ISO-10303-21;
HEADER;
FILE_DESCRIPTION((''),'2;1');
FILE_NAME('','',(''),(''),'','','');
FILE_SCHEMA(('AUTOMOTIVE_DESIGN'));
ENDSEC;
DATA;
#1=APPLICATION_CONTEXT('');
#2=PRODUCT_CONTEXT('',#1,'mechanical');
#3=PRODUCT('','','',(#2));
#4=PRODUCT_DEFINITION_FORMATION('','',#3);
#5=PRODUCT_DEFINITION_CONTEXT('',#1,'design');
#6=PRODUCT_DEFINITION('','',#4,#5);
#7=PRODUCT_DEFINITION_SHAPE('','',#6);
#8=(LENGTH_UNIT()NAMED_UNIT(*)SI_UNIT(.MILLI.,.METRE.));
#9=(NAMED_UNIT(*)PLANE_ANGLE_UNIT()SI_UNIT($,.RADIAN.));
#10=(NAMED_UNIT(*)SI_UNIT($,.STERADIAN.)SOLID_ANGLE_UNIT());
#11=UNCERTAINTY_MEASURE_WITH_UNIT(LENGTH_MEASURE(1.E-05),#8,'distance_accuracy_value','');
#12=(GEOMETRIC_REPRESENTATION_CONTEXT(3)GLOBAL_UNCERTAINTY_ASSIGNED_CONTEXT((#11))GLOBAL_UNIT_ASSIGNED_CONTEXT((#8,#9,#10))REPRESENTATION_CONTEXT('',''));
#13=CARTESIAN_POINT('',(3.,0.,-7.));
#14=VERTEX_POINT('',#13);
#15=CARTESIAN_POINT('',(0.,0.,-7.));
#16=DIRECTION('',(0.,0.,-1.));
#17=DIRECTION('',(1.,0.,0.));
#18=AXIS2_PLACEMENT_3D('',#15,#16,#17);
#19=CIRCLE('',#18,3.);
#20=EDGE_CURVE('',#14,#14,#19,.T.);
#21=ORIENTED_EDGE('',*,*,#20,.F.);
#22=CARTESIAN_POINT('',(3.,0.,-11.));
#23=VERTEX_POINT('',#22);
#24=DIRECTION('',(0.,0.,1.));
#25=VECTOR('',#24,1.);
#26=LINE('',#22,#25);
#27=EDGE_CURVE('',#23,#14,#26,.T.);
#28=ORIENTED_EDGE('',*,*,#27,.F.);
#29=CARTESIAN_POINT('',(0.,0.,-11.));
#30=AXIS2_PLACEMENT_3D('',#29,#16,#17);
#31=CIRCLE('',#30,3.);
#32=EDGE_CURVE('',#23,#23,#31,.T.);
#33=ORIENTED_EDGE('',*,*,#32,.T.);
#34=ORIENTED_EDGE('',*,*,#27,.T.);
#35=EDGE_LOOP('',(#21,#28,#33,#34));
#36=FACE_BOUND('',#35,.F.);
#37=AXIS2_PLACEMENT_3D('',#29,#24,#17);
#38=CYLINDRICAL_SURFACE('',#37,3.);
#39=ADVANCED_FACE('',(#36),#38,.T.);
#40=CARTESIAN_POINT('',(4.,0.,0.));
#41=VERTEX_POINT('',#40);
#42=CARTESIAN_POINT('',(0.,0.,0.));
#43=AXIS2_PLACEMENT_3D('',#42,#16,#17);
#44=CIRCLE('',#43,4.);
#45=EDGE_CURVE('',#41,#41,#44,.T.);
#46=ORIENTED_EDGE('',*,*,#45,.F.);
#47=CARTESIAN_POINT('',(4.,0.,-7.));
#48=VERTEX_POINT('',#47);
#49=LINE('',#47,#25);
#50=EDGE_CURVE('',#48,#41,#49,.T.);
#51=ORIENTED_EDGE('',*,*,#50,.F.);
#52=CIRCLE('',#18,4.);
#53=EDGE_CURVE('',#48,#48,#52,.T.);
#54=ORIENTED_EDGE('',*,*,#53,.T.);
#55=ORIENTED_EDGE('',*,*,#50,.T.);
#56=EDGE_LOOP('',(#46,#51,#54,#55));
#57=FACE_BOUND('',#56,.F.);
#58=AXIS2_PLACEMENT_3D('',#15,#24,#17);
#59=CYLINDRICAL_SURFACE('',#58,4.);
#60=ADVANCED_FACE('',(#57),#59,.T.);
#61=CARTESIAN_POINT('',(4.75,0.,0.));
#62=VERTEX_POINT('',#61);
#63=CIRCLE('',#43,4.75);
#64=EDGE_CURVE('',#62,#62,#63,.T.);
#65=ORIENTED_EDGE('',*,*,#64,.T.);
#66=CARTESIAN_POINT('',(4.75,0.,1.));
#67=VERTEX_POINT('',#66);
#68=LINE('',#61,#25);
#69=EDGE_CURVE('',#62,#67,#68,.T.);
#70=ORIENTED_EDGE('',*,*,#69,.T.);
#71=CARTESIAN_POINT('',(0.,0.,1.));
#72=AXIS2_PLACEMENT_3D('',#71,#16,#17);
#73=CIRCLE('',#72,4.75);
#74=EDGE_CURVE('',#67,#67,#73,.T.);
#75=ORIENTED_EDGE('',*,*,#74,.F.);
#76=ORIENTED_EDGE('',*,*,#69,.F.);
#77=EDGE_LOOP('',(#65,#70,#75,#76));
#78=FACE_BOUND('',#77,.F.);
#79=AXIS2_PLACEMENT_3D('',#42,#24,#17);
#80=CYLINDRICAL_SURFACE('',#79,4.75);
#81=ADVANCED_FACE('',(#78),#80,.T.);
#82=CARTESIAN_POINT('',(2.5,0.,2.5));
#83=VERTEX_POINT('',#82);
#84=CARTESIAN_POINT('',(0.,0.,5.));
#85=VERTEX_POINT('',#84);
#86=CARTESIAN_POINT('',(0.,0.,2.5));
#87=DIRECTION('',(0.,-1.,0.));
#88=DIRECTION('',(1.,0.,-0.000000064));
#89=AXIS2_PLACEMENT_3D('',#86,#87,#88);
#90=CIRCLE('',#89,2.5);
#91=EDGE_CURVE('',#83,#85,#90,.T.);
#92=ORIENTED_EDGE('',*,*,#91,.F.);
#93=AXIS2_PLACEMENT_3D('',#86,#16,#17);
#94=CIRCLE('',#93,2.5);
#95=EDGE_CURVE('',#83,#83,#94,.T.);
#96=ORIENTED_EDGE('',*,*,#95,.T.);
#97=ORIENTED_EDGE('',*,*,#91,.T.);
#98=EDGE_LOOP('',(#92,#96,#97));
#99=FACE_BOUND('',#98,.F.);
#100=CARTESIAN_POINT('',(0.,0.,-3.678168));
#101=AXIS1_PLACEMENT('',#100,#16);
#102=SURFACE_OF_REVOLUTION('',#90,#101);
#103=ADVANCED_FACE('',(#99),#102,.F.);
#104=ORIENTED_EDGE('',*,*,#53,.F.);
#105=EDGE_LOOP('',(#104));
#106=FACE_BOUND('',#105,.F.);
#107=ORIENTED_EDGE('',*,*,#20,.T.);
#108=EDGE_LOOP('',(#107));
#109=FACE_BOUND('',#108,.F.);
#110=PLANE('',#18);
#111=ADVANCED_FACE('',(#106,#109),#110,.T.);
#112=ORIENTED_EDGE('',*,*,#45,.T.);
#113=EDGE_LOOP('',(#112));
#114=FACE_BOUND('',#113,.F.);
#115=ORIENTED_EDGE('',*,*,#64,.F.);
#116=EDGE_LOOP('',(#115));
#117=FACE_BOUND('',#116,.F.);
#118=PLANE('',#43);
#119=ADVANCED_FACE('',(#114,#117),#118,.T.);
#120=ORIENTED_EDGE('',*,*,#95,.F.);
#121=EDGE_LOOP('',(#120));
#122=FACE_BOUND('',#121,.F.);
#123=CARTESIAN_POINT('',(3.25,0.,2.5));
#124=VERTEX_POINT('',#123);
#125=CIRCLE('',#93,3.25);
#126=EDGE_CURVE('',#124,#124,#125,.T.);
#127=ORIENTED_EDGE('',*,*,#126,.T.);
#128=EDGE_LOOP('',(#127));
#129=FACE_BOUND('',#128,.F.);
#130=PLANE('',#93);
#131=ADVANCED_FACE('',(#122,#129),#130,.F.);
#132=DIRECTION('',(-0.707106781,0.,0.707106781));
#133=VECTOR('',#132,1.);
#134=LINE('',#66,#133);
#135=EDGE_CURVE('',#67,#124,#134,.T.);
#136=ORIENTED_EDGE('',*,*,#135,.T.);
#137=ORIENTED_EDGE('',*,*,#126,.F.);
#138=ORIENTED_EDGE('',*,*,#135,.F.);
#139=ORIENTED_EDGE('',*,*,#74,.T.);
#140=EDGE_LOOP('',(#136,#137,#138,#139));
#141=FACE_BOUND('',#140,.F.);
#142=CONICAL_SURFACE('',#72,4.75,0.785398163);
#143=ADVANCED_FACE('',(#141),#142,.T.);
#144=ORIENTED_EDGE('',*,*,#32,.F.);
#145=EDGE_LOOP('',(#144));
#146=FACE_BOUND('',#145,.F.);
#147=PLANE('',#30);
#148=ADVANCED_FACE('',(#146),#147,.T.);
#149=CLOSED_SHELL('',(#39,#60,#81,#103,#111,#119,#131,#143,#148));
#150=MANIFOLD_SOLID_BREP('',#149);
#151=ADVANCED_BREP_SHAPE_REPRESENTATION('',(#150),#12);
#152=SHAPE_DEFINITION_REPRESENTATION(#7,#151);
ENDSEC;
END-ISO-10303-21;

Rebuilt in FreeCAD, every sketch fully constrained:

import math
import FreeCAD as App
import Part
import Sketcher

V = App.Vector

doc = App.newDocument("Part")
body = doc.addObject("PartDesign::Body", "Body")

# Sketch on XZ plane
sketch1 = doc.addObject("Sketcher::SketchObject", "Sketch")
body.addObject(sketch1)
sketch1.AttachmentSupport = (doc.XZ_Plane, [""])
sketch1.MapMode = "FlatFace"
sketch1.addGeometry(Part.LineSegment(V(3.2, 2.5, 0), V(2.5, 2.5, 0)), False)
sketch1.addGeometry(Part.ArcOfCircle(Part.Circle(V(0, 2.5, 0), V(0, 0, 1), 2.5), math.radians(0), math.radians(90)), False)
sketch1.addGeometry(Part.LineSegment(V(0, 5, 0), V(0, -11, 0)), False)
sketch1.addGeometry(Part.LineSegment(V(0, -11, 0), V(3, -11, 0)), False)
sketch1.addGeometry(Part.LineSegment(V(3, -11, 0), V(3, -7, 0)), False)
sketch1.addGeometry(Part.LineSegment(V(3, -7, 0), V(4, -7, 0)), False)
sketch1.addGeometry(Part.LineSegment(V(4, -7, 0), V(4, 0, 0)), False)
sketch1.addGeometry(Part.LineSegment(V(4, 0, 0), V(4.8, 0, 0)), False)
sketch1.addGeometry(Part.LineSegment(V(4.8, 0, 0), V(4.8, 1, 0)), False)
sketch1.addGeometry(Part.LineSegment(V(4.8, 1, 0), V(3.2, 2.5, 0)), False)
sketch1.addConstraint(Sketcher.Constraint("Coincident", 0, 2, 1, 1))
sketch1.addConstraint(Sketcher.Constraint("Coincident", 1, 2, 2, 1))
sketch1.addConstraint(Sketcher.Constraint("Coincident", 2, 2, 3, 1))
sketch1.addConstraint(Sketcher.Constraint("Coincident", 3, 2, 4, 1))
sketch1.addConstraint(Sketcher.Constraint("Coincident", 4, 2, 5, 1))
sketch1.addConstraint(Sketcher.Constraint("Coincident", 5, 2, 6, 1))
sketch1.addConstraint(Sketcher.Constraint("Coincident", 6, 2, 7, 1))
sketch1.addConstraint(Sketcher.Constraint("Coincident", 7, 2, 8, 1))
sketch1.addConstraint(Sketcher.Constraint("Coincident", 8, 2, 9, 1))
sketch1.addConstraint(Sketcher.Constraint("Coincident", 9, 2, 0, 1))
sketch1.addConstraint(Sketcher.Constraint("Horizontal", 0))
sketch1.addConstraint(Sketcher.Constraint("Vertical", 2))
sketch1.addConstraint(Sketcher.Constraint("Horizontal", 3))
sketch1.addConstraint(Sketcher.Constraint("Vertical", 4))
sketch1.addConstraint(Sketcher.Constraint("Horizontal", 5))
sketch1.addConstraint(Sketcher.Constraint("Vertical", 6))
sketch1.addConstraint(Sketcher.Constraint("Horizontal", 7))
sketch1.addConstraint(Sketcher.Constraint("Vertical", 8))
sketch1.addConstraint(Sketcher.Constraint("PointOnObject", 1, 3, -2))
sketch1.addConstraint(Sketcher.Constraint("PointOnObject", 1, 2, -2))
sketch1.addConstraint(Sketcher.Constraint("PointOnObject", 6, 2, -1))
sketch1.addConstraint(Sketcher.Constraint("Horizontal", 1, 3, 0, 2))
sketch1.addConstraint(Sketcher.Constraint("Equal", 0, 7))
sketch1.addConstraint(Sketcher.Constraint("Equal", 5, 8))
sketch1.addConstraint(Sketcher.Constraint("Radius", 1, 2.5))
sketch1.addConstraint(Sketcher.Constraint("DistanceX", 3, 1, 3, 2, 3.0))
sketch1.addConstraint(Sketcher.Constraint("DistanceX", 5, 1, 5, 2, 1.0))
sketch1.addConstraint(Sketcher.Constraint("DistanceY", 2, 2, 2, 1, 16.0))
sketch1.addConstraint(Sketcher.Constraint("DistanceY", 4, 1, 4, 2, 4.0))
sketch1.addConstraint(Sketcher.Constraint("DistanceY", 6, 1, 6, 2, 7.0))
sketch1.addConstraint(Sketcher.Constraint("DistanceX", 0, 2, 0, 1, 0.75))
revolution = doc.addObject("PartDesign::Revolution", "Revolution")
body.addObject(revolution)
revolution.Profile = sketch1
revolution.ReferenceAxis = (sketch1, ["V_Axis"])
revolution.Angle = 360

doc.recompute()
